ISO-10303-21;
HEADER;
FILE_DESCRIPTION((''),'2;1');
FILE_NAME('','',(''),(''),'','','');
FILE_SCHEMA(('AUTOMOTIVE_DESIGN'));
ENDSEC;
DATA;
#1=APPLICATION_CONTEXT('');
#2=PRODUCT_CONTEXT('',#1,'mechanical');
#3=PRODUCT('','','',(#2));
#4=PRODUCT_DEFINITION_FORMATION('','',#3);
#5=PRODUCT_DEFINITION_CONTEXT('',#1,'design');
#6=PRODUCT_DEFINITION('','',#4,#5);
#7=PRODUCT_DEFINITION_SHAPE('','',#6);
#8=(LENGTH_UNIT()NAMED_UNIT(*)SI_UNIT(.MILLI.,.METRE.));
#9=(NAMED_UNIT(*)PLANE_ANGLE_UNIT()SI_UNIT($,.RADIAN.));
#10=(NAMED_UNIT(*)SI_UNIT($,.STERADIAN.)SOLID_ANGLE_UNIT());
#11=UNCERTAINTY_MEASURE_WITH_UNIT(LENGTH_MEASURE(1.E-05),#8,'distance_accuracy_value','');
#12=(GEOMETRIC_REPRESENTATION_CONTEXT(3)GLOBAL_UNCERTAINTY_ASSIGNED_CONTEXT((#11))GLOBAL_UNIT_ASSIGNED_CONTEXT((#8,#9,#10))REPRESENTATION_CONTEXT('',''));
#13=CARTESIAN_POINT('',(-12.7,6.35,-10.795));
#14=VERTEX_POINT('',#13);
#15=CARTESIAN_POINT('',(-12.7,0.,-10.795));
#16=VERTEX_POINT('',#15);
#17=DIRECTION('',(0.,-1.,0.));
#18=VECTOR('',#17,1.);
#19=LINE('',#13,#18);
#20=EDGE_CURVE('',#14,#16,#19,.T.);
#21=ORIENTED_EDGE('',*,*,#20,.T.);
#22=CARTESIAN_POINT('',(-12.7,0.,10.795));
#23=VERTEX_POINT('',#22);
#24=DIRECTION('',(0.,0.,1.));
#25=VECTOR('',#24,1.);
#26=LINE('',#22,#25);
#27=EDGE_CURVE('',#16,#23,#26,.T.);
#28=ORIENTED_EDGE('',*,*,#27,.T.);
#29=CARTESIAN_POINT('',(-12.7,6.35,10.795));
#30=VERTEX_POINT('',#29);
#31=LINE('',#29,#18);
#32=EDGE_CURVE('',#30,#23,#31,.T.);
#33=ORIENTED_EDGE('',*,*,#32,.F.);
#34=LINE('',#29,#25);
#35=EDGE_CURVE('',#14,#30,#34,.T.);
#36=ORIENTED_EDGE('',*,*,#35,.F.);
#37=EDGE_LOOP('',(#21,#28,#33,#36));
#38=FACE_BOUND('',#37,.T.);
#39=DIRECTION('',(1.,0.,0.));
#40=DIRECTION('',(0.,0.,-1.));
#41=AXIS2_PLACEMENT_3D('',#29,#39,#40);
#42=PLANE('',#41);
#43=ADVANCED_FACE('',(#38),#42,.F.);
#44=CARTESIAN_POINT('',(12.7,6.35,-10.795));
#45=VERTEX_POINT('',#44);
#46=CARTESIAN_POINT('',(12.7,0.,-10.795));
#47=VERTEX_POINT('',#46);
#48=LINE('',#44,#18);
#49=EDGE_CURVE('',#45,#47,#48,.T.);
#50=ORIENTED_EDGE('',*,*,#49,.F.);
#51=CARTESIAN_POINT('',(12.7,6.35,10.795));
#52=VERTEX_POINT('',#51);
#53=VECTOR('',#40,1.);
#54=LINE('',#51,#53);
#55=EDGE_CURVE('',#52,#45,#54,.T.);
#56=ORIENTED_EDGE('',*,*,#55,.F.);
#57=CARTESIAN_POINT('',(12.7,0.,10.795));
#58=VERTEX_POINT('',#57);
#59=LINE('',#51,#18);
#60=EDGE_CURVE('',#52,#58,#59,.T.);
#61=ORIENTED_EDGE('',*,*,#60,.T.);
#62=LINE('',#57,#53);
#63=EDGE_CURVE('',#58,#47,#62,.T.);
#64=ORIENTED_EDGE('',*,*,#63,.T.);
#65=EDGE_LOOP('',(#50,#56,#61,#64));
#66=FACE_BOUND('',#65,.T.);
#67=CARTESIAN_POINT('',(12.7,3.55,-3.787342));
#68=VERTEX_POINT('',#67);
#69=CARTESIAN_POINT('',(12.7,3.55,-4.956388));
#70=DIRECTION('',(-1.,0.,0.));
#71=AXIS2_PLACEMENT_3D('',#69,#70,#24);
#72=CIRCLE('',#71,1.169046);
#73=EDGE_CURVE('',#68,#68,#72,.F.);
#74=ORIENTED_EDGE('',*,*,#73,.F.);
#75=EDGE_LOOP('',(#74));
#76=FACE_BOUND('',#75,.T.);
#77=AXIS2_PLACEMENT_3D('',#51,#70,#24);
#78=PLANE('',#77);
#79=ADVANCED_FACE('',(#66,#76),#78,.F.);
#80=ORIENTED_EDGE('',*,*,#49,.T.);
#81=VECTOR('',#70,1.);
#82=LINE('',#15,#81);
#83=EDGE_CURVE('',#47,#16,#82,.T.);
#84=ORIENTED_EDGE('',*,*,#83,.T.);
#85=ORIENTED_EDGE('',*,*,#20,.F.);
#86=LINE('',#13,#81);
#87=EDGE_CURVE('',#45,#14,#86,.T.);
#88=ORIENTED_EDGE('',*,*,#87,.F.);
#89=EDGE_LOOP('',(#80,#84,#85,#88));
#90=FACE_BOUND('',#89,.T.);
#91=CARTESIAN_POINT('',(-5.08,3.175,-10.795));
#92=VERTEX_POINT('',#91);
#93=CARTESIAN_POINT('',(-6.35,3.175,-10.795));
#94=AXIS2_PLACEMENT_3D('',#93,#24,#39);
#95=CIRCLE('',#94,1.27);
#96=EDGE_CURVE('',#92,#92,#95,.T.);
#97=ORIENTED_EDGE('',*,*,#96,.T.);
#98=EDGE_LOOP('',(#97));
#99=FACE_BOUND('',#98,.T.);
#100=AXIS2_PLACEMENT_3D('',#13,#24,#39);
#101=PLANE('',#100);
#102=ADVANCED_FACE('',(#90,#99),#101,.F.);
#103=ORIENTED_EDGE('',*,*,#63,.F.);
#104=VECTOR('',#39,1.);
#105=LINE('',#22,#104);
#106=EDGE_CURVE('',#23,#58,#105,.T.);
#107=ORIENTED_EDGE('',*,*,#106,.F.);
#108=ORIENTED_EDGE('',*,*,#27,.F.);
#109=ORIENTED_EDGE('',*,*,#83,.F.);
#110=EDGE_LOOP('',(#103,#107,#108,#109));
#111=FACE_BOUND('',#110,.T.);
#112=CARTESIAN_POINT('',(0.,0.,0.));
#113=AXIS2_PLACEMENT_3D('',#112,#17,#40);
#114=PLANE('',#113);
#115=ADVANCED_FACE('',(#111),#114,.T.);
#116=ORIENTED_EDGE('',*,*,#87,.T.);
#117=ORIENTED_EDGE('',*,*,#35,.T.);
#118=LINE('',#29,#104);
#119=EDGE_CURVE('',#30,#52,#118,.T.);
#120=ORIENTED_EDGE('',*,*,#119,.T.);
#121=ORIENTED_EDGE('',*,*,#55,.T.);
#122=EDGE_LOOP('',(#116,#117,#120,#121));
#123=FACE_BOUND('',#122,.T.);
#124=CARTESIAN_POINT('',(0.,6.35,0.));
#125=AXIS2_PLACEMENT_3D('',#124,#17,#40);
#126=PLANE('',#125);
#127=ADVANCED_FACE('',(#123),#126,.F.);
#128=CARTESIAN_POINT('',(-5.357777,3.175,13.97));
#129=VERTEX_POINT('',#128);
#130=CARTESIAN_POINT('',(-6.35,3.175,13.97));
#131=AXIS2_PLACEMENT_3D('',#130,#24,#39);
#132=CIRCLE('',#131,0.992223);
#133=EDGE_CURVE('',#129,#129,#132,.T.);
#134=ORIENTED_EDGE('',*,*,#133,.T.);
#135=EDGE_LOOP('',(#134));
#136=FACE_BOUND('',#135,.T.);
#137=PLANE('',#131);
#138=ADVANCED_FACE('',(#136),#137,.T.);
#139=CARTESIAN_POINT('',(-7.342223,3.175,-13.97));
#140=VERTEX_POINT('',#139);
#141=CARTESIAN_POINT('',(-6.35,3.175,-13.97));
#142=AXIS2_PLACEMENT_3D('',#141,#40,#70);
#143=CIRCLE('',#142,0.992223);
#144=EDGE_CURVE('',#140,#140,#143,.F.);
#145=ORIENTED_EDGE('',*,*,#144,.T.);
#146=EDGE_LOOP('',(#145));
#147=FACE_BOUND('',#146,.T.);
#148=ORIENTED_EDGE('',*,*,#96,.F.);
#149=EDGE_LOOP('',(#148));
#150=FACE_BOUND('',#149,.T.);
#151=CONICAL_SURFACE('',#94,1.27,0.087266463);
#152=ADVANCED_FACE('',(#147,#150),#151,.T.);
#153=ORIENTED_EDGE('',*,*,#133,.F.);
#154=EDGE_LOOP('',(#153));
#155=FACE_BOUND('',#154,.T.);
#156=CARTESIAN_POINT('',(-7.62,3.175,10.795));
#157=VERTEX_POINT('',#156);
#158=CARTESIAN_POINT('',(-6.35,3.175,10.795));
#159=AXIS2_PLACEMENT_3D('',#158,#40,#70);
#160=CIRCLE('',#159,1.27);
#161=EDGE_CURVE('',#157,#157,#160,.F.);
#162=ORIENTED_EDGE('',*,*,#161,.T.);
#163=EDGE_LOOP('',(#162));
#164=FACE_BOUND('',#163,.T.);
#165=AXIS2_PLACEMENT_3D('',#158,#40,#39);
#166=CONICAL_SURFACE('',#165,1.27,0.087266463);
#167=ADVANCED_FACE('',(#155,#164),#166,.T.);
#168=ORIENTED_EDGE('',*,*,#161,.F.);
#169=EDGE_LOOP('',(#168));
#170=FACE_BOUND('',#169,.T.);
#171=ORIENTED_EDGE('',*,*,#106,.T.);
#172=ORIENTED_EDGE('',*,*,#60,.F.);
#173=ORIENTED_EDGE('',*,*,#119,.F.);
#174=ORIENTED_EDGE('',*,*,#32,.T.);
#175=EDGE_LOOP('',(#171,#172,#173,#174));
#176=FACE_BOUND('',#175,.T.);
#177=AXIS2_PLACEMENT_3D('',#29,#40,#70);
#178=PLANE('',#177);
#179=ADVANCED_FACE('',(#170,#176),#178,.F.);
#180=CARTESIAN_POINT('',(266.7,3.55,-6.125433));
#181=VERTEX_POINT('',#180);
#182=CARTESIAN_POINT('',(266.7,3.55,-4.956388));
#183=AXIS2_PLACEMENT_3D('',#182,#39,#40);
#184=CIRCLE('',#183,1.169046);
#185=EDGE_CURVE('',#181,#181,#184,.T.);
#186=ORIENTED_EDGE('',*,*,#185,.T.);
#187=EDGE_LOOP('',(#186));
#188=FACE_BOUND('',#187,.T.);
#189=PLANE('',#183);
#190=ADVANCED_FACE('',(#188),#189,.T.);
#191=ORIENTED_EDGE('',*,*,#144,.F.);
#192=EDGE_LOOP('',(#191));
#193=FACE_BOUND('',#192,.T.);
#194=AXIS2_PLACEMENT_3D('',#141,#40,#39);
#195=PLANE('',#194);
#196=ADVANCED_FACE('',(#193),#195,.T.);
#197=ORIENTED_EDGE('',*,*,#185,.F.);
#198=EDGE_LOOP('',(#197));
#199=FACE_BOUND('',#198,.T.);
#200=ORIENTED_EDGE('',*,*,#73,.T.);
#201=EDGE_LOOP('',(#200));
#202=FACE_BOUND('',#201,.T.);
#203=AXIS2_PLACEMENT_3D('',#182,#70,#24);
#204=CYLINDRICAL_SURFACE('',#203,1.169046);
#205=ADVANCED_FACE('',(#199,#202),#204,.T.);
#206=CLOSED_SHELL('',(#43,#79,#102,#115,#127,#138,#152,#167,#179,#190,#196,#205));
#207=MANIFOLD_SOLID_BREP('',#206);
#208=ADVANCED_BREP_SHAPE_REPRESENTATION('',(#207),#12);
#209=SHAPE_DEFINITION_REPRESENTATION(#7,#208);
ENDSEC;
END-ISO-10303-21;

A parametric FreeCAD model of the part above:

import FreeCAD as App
import Part
import Sketcher
Q = App.Units.Quantity

doc = App.newDocument("Part")
params = doc.addObject("Spreadsheet::Sheet", "Params")
for row, (alias, value) in enumerate([
    ("sketch1_width", "1 in"),
    ("sketch1_height", "0.85 in"),
    ("pad1_length", "0.25 in"),
    ("sketch2_diameter", "0.1 in"),
    ("pad2_length", "0.125 in"),
    ("pad2_taper", "-5 deg"),
    ("pad3_length", "10 in"),
], start=1):
    params.set(f"A{row}", alias)
    params.set(f"B{row}", "=" + value)
    params.setAlias(f"B{row}", alias)

body = doc.addObject("PartDesign::Body", "Body")

sketch1 = body.newObject("Sketcher::SketchObject", "Sketch")
sketch1.AttachmentSupport = (doc.getObject("XZ_Plane"), [""])
sketch1.MapMode = "FlatFace"
sketch1.addGeometry(Part.LineSegment(App.Vector(-13, -11, 0), App.Vector(-13, 11, 0)), False)
sketch1.addGeometry(Part.LineSegment(App.Vector(-13, 11, 0), App.Vector(13, 11, 0)), False)
sketch1.addGeometry(Part.LineSegment(App.Vector(13, 11, 0), App.Vector(13, -11, 0)), False)
sketch1.addGeometry(Part.LineSegment(App.Vector(13, -11, 0), App.Vector(-13, -11, 0)), False)
sketch1.addConstraint(Sketcher.Constraint("Coincident", 0, 2, 1, 1))
sketch1.addConstraint(Sketcher.Constraint("Coincident", 1, 2, 2, 1))
sketch1.addConstraint(Sketcher.Constraint("Coincident", 2, 2, 3, 1))
sketch1.addConstraint(Sketcher.Constraint("Coincident", 3, 2, 0, 1))
sketch1.addConstraint(Sketcher.Constraint("Vertical", 0))
sketch1.addConstraint(Sketcher.Constraint("Horizontal", 1))
sketch1.addConstraint(Sketcher.Constraint("Vertical", 2))
sketch1.addConstraint(Sketcher.Constraint("Horizontal", 3))
sketch1.addConstraint(Sketcher.Constraint("Symmetric", 0, 2, 2, 2, -1, 1))
sketch1.addConstraint(Sketcher.Constraint("DistanceX", 1, 1, 1, 2, Q("1 in")))
sketch1.addConstraint(Sketcher.Constraint("DistanceY", 0, 1, 0, 2, Q("0.85 in")))
sketch1.setExpression("Constraints[9]", "Params.sketch1_width")
sketch1.setExpression("Constraints[10]", "Params.sketch1_height")
pad1 = body.newObject("PartDesign::Pad", "Pad")
pad1.Profile = sketch1
pad1.setExpression("Length", "Params.pad1_length")
pad1.Reversed = True

sketch2 = body.newObject("Sketcher::SketchObject", "Sketch001")
sketch2.AttachmentSupport = (doc.getObject("XY_Plane"), [""])
sketch2.MapMode = "FlatFace"
sketch2.AttachmentOffset = App.Placement(App.Vector(0, 0, 0.425 * 25.4), App.Rotation())
sketch2.addGeometry(Part.Circle(App.Vector(-6.3, 3.2, 0), App.Vector(0, 0, 1), 1.3), False)
sketch2.addConstraint(Sketcher.Constraint("Diameter", 0, Q("0.1 in")))
sketch2.addConstraint(Sketcher.Constraint("DistanceX", 0, 3, -1, 1, Q("0.25 in")))
sketch2.addConstraint(Sketcher.Constraint("DistanceY", -1, 1, 0, 3, Q("0.125 in")))
sketch2.setExpression("Constraints[0]", "Params.sketch2_diameter")
pad2 = body.newObject("PartDesign::Pad", "Pad001")
pad2.Profile = sketch2
pad2.setExpression("Length", "Params.pad2_length")
pad2.setExpression("TaperAngle", "Params.pad2_taper")
doc.recompute()

mirrored = body.newObject("PartDesign::Mirrored", "Mirrored")
mirrored.Originals = [pad2]
mirrored.MirrorPlane = (doc.getObject("XY_Plane"), [""])
body.Tip = mirrored

sketch3 = body.newObject("Sketcher::SketchObject", "Sketch002")
sketch3.AttachmentSupport = (doc.getObject("YZ_Plane"), [""])
sketch3.MapMode = "FlatFace"
sketch3.AttachmentOffset = App.Placement(App.Vector(0, 0, 0.5 * 25.4), App.Rotation())
sketch3.addGeometry(Part.Circle(App.Vector(3.5, -5, 0), App.Vector(0, 0, 1), 1.2), False)
sketch3.addConstraint(Sketcher.Constraint("Diameter", 0, 2.338091))
sketch3.addConstraint(Sketcher.Constraint("DistanceX", -1, 1, 0, 3, 3.55))
sketch3.addConstraint(Sketcher.Constraint("DistanceY", 0, 3, -1, 1, 4.956388))
pad3 = body.newObject("PartDesign::Pad", "Pad002")
pad3.Profile = sketch3
pad3.setExpression("Length", "Params.pad3_length")

doc.recompute()
